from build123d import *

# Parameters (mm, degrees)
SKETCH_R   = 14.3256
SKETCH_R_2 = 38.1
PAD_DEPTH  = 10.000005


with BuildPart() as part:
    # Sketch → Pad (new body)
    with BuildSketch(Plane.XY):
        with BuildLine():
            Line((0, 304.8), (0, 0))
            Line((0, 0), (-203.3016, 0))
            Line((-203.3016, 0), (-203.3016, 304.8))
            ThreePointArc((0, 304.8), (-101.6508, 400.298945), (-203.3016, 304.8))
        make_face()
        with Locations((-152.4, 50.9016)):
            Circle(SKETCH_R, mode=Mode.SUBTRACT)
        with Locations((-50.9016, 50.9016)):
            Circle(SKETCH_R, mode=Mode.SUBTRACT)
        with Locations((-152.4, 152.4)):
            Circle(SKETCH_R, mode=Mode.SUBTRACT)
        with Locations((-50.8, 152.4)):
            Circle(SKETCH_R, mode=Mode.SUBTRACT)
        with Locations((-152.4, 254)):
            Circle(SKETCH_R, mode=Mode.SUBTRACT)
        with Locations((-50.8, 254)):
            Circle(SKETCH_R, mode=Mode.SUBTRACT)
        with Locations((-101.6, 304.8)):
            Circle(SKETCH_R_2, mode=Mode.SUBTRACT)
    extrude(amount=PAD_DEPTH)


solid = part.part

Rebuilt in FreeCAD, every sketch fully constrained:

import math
import FreeCAD as App
import Part
import Sketcher

V = App.Vector
Q = App.Units.Quantity

doc = App.newDocument("Part")
body = doc.addObject("PartDesign::Body", "Body")

sketch1 = body.newObject("Sketcher::SketchObject", "Sketch")
sketch1.AttachmentSupport = (doc.getObject("XY_Plane"), [""])
sketch1.MapMode = "FlatFace"
sketch1.addGeometry([
    Part.LineSegment(V(0, 0, 0), V(0, 305, 0)),
    Part.ArcOfCircle(Part.Circle(V(-102, 298, 0), V(0, 0, 1), 102), math.radians(4), math.radians(176)),
    Part.LineSegment(V(-203, 305, 0), V(-203, 0, 0)),
    Part.LineSegment(V(-203, 0, 0), V(0, 0, 0)),
    Part.Circle(V(-51, 51, 0), V(0, 0, 1), 14),
    Part.Circle(V(-51, 152, 0), V(0, 0, 1), 14),
    Part.Circle(V(-152, 51, 0), V(0, 0, 1), 14),
    Part.Circle(V(-152, 152, 0), V(0, 0, 1), 14),
    Part.Circle(V(-51, 254, 0), V(0, 0, 1), 14),
    Part.Circle(V(-102, 305, 0), V(0, 0, 1), 38),
    Part.Circle(V(-152, 254, 0), V(0, 0, 1), 14),
], False)
sketch1.addConstraint([
    Sketcher.Constraint("Coincident", 0, 2, 1, 1),
    Sketcher.Constraint("Coincident", 1, 2, 2, 1),
    Sketcher.Constraint("Coincident", 2, 2, 3, 1),
    Sketcher.Constraint("Coincident", 3, 2, 0, 1),
    Sketcher.Constraint("Vertical", 0),
    Sketcher.Constraint("Vertical", 2),
    Sketcher.Constraint("Horizontal", 3),
    Sketcher.Constraint("Coincident", 3, 2, -1, 1),
    Sketcher.Constraint("Equal", 4, 5),
    Sketcher.Constraint("Equal", 5, 6),
    Sketcher.Constraint("Equal", 6, 7),
    Sketcher.Constraint("Equal", 7, 8),
    Sketcher.Constraint("Equal", 8, 10),
    Sketcher.Constraint("Horizontal", 4, 3, 6, 3),
    Sketcher.Constraint("Horizontal", 5, 3, 7, 3),
    Sketcher.Constraint("Horizontal", 8, 3, 10, 3),
    Sketcher.Constraint("Horizontal", 9, 3, 0, 2),
    Sketcher.Constraint("Horizontal", 0, 2, 1, 2),
    Sketcher.Constraint("Vertical", 6, 3, 7, 3),
    Sketcher.Constraint("Vertical", 5, 3, 8, 3),
    Sketcher.Constraint("Vertical", 7, 3, 10, 3),
    Sketcher.Constraint("Diameter", 9, Q("3 in")),
    Sketcher.Constraint("DistanceY", 0, 1, 0, 2, Q("12 in")),
    Sketcher.Constraint("Diameter", 4, Q("1.128 in")),
    Sketcher.Constraint("DistanceX", 5, 3, -1, 1, Q("2 in")),
    Sketcher.Constraint("DistanceY", -1, 1, 5, 3, Q("6 in")),
    Sketcher.Constraint("DistanceX", 6, 3, -1, 1, Q("6 in")),
    Sketcher.Constraint("DistanceY", -1, 1, 8, 3, Q("10 in")),
    Sketcher.Constraint("DistanceX", 9, 3, -1, 1, Q("4 in")),
    Sketcher.Constraint("DistanceX", 2, 2, 4, 3, Q("6 in")),
    Sketcher.Constraint("DistanceX", 3, 1, 3, 2, Q("8.004 in")),
    Sketcher.Constraint("DistanceY", -1, 1, 1, 3, Q("11.75 in")),
    Sketcher.Constraint("DistanceY", -1, 1, 4, 3, Q("2.004 in")),
])
pad1 = body.newObject("PartDesign::Pad", "Pad")
pad1.Profile = sketch1
pad1.Length = 10.000005

doc.recompute()
